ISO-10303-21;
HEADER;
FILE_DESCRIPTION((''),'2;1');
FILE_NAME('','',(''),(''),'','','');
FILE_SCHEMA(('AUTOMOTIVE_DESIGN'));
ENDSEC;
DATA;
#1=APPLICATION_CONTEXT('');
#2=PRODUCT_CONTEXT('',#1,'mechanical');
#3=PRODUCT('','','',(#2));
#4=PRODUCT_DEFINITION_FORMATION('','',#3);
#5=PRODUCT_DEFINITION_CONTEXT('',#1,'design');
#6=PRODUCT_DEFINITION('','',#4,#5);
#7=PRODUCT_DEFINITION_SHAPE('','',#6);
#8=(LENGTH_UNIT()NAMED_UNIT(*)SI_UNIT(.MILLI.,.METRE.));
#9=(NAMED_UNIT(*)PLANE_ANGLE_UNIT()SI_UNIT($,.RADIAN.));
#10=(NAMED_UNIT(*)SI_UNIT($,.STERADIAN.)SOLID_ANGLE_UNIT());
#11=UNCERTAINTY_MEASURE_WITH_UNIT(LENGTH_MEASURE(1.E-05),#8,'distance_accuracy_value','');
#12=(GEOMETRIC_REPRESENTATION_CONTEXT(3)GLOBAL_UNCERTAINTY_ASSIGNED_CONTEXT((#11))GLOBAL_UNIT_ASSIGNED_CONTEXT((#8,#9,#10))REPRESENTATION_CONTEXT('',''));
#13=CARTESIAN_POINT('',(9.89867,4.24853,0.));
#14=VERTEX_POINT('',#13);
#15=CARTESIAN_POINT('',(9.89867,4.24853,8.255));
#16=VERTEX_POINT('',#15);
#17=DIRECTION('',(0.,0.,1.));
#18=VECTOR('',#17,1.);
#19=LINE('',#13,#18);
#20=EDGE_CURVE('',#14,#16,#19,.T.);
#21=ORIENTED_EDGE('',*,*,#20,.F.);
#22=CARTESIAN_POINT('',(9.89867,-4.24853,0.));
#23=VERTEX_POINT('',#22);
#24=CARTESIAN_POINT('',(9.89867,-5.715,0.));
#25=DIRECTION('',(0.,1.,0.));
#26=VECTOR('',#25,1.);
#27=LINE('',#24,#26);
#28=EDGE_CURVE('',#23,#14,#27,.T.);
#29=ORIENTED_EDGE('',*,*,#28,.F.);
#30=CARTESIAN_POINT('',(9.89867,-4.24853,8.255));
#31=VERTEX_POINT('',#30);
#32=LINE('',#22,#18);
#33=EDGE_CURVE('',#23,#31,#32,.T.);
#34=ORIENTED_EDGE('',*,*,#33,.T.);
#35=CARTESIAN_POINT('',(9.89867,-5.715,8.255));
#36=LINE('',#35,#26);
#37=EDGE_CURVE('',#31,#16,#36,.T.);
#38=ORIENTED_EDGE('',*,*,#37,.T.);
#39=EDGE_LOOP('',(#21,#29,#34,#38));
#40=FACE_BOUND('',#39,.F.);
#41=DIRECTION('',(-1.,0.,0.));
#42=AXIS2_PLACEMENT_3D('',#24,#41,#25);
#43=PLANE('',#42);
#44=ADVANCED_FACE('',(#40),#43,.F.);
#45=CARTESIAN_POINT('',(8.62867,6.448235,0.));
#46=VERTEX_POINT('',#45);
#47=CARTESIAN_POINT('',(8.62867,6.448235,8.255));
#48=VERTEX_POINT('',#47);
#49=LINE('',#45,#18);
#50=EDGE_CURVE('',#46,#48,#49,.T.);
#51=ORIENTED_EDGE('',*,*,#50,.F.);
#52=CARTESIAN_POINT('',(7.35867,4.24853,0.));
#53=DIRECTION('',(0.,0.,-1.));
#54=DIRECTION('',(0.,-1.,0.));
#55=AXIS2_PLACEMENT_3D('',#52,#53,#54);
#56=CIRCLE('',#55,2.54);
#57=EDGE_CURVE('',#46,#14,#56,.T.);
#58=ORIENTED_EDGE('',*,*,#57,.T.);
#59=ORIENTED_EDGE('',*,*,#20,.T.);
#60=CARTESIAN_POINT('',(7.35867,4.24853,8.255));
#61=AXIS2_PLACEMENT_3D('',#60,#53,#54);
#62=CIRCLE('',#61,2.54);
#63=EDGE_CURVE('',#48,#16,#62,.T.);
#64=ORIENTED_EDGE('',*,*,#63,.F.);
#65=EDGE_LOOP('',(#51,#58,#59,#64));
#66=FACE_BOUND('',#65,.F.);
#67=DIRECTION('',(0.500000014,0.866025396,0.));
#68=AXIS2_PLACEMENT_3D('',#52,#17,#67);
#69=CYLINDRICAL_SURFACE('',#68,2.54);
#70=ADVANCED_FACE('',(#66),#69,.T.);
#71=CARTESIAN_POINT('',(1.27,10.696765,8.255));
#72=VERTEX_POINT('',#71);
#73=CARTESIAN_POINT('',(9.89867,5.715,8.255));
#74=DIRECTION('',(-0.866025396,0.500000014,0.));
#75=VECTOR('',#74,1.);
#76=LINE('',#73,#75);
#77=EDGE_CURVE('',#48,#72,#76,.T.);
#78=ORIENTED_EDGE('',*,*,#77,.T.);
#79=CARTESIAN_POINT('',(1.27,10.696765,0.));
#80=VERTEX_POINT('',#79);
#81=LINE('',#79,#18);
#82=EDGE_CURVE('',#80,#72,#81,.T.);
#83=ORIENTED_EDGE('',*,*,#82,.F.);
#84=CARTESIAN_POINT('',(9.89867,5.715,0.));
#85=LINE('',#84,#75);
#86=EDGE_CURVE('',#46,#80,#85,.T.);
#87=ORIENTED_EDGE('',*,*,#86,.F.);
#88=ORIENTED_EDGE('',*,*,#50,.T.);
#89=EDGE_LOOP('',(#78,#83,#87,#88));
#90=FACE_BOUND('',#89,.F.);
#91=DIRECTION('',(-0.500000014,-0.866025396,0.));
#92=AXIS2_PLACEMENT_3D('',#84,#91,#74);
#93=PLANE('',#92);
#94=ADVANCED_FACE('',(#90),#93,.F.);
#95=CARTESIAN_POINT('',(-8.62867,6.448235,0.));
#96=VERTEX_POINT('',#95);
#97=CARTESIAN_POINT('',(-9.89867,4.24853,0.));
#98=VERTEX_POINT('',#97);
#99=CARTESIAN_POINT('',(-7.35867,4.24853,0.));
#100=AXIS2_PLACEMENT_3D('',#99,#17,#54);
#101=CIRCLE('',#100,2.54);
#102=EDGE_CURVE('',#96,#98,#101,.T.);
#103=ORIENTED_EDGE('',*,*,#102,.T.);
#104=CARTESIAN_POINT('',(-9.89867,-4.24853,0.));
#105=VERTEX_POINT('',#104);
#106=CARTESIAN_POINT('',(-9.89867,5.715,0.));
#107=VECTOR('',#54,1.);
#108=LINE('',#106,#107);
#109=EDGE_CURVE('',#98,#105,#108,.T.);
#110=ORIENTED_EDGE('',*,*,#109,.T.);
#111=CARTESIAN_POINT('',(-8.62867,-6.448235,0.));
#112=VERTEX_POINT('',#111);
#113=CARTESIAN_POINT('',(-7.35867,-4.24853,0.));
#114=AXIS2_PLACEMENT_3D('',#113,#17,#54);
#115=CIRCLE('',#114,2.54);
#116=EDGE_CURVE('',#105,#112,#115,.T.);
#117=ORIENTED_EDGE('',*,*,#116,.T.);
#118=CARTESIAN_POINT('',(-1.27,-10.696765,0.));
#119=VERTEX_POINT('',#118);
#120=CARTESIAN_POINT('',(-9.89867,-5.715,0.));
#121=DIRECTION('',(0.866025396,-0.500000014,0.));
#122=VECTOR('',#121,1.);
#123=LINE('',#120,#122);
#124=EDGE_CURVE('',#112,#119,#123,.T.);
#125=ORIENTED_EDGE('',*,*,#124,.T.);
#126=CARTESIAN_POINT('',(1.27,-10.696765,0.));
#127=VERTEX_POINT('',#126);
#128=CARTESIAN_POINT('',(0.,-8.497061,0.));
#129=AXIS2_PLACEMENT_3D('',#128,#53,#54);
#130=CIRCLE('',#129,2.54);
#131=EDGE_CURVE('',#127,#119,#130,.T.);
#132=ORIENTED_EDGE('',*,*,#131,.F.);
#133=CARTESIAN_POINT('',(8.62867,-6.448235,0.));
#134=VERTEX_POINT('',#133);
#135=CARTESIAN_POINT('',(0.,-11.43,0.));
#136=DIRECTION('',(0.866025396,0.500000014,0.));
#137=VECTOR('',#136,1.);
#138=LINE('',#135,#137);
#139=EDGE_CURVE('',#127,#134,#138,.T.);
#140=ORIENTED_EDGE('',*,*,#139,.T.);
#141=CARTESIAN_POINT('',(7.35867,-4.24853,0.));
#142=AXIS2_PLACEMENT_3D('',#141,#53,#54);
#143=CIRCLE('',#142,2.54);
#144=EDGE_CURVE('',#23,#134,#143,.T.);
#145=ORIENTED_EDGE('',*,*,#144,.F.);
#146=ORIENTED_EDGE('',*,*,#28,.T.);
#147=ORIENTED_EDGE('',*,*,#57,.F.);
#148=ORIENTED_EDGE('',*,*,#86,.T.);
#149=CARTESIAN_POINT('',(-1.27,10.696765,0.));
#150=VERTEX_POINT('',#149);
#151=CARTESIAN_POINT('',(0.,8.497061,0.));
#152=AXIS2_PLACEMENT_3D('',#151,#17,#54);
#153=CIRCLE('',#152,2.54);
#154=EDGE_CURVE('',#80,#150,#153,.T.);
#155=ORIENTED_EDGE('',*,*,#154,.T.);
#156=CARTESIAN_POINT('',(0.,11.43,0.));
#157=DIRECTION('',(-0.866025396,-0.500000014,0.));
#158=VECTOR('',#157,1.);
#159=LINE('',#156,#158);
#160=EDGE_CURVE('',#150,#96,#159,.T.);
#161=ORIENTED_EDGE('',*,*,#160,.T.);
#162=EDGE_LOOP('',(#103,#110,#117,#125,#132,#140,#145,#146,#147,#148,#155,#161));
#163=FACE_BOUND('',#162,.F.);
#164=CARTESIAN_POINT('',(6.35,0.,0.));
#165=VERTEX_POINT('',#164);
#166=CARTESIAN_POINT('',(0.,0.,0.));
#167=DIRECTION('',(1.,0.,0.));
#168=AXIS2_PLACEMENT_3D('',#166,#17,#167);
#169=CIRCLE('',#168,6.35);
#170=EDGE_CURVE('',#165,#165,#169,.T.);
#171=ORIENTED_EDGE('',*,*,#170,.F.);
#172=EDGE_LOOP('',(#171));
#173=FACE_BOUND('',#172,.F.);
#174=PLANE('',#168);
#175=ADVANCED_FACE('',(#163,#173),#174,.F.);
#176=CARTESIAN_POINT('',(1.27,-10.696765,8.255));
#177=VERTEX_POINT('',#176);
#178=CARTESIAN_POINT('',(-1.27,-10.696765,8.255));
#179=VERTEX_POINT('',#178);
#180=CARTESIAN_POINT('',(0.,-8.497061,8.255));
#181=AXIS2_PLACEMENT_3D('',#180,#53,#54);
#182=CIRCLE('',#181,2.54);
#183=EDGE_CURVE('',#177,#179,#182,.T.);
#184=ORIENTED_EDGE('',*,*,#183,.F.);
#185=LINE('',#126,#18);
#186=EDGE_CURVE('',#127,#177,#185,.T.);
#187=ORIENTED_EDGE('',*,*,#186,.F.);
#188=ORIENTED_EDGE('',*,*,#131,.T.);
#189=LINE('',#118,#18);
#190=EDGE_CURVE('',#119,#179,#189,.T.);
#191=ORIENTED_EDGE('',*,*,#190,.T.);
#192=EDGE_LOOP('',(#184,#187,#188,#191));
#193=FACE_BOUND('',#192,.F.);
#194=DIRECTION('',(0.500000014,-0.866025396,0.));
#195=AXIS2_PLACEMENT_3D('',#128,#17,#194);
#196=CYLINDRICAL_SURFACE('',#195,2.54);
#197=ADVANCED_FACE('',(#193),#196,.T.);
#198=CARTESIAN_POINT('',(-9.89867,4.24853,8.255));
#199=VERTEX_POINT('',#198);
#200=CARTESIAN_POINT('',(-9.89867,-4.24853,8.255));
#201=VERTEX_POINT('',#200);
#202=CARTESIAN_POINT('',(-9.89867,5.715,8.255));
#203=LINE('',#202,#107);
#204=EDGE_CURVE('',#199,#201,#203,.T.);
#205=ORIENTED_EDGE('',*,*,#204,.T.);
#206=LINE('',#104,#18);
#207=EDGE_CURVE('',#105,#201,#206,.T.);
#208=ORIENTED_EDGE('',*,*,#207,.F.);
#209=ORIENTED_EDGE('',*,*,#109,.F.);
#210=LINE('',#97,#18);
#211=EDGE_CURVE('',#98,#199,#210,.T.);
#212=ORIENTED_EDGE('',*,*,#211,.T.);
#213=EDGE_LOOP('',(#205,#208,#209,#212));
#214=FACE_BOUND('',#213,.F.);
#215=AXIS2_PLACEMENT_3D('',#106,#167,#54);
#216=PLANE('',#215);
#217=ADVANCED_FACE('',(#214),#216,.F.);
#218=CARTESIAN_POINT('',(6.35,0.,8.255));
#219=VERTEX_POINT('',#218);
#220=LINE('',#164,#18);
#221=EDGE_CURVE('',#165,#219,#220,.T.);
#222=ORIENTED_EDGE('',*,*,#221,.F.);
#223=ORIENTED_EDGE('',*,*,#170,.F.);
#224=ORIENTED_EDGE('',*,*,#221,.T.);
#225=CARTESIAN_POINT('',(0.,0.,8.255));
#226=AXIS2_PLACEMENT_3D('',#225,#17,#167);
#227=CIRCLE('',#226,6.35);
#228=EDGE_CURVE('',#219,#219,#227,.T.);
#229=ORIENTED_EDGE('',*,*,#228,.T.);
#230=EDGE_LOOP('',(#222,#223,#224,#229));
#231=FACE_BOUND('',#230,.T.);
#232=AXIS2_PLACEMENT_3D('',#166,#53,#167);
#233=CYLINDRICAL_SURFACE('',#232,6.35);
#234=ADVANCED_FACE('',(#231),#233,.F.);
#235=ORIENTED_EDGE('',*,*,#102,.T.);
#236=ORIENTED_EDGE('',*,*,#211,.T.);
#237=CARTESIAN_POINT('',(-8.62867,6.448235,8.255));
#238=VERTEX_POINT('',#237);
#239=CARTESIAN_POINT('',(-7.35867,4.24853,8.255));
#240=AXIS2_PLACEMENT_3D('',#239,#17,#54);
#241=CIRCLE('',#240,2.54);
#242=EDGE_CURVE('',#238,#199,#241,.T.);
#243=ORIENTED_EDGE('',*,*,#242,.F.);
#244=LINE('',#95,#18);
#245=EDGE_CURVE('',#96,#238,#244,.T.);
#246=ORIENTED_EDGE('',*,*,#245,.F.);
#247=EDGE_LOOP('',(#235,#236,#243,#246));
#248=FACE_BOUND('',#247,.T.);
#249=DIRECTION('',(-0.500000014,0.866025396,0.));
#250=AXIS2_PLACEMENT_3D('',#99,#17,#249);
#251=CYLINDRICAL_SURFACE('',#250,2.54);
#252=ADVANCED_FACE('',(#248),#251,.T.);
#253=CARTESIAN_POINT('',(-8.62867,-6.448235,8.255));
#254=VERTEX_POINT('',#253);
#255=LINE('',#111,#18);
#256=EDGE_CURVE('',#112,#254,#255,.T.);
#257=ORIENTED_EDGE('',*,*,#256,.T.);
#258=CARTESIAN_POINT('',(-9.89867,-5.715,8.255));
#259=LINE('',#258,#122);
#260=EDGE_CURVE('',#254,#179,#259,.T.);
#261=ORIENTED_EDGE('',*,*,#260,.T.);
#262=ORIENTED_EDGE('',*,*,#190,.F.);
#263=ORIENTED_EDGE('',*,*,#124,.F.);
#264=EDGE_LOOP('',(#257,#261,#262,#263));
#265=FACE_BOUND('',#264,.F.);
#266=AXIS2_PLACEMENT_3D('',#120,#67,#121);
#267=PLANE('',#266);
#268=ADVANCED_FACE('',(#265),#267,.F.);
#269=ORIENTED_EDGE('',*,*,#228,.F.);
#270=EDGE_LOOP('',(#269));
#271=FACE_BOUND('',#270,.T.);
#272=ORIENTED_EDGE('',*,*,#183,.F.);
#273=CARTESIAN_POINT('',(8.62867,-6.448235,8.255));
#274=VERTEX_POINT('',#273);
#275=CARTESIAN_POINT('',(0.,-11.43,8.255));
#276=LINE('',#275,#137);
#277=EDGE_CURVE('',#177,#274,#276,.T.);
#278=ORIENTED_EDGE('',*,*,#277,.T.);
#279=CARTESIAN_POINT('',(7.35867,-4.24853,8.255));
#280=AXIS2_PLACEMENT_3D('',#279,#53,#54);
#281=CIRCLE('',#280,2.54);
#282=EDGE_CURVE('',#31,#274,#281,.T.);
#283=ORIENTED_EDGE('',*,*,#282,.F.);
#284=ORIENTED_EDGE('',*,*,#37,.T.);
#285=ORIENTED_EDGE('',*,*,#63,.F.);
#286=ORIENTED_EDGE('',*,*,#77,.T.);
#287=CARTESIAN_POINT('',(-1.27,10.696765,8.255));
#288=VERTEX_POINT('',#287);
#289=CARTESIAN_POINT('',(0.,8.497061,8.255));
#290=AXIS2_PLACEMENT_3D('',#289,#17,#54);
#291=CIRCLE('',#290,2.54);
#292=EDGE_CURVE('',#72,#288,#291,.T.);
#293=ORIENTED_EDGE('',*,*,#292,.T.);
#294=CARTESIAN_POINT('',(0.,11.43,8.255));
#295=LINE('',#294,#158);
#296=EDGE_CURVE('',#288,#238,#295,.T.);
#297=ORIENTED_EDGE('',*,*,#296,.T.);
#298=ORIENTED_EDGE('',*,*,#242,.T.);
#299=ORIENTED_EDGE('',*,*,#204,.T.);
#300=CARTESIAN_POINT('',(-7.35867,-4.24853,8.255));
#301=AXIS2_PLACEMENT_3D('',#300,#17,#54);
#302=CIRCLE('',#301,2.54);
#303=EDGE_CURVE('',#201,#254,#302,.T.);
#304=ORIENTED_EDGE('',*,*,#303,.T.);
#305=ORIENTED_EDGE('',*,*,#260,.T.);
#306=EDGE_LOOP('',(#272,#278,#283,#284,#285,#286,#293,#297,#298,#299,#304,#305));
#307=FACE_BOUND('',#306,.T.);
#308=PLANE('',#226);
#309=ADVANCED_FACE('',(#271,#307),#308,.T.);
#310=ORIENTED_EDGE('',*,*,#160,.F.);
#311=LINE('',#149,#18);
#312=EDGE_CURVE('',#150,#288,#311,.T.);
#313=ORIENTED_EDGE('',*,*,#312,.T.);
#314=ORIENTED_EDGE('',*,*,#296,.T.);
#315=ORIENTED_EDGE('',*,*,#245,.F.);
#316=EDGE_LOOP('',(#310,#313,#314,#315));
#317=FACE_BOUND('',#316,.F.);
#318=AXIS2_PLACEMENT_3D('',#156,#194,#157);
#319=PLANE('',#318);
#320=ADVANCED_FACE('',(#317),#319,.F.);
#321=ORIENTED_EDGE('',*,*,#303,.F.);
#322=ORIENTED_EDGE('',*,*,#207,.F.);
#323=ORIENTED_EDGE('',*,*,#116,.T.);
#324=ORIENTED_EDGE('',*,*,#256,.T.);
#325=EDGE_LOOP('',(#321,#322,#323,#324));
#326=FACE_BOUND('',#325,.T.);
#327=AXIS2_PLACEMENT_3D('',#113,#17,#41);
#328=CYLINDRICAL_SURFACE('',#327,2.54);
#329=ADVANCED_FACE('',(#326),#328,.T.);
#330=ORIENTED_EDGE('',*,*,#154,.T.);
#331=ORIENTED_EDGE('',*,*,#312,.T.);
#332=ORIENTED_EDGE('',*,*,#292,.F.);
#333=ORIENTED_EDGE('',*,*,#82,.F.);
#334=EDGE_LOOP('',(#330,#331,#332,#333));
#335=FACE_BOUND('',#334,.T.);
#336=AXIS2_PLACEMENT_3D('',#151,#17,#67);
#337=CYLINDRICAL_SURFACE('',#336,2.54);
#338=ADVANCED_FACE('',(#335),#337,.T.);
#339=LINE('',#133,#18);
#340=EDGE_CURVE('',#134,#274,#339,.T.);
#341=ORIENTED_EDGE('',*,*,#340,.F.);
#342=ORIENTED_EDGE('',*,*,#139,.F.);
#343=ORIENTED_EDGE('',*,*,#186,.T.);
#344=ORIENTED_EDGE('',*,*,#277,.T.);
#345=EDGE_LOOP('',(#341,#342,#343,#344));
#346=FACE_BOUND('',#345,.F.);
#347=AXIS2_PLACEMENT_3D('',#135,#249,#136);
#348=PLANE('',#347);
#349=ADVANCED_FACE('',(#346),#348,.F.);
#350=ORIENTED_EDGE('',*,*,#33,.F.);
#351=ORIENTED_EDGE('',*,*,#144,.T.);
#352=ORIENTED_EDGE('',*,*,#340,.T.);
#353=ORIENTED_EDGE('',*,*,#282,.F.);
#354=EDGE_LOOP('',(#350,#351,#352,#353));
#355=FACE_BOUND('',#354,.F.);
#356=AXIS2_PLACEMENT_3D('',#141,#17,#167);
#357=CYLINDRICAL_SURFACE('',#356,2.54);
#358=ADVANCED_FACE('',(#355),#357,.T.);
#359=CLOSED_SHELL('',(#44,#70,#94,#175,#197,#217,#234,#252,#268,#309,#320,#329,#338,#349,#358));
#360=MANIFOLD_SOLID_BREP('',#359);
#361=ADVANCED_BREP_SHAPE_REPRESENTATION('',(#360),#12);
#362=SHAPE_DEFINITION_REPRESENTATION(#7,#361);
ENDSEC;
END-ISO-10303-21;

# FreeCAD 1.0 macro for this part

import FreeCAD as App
import Part
import Sketcher

V = App.Vector
Q = App.Units.Quantity


def edges_at(feature, points):
    """Names of the edges that pass closest to the given points."""
    edges = feature.Shape.Edges
    near = lambda p: min(range(len(edges)), key=lambda i: edges[i].distToShape(Part.Vertex(*p))[0])
    return sorted({f"Edge{near(p) + 1}" for p in points})


def add_polygon(sketch, points):
    """Adds a closed chain of lines whose ends are joined by coincident constraints."""
    first, n = sketch.GeometryCount, len(points)
    for a, b in zip(points, points[1:] + points[:1]):
        sketch.addGeometry(Part.LineSegment(App.Vector(*a, 0), App.Vector(*b, 0)), False)
    for i in range(n):
        sketch.addConstraint(Sketcher.Constraint("Coincident", first + i, 2, first + (i + 1) % n, 1))

doc = App.newDocument("Part")
body = doc.addObject("PartDesign::Body", "Body")

sketch1 = body.newObject("Sketcher::SketchObject", "Sketch")
sketch1.AttachmentSupport = (doc.getObject("XY_Plane"), [""])
sketch1.MapMode = "FlatFace"
add_polygon(sketch1, [(9.89867, 5.715), (0, 11.43), (-9.89867, 5.715), (-9.89867, -5.715), (0, -11.43), (9.89867, -5.715)])
sketch1.addGeometry(Part.Circle(V(0, 0, 0), V(0, 0, 1), 6.35), False)
sketch1.addConstraint([
    Sketcher.Constraint("Vertical", 2),
    Sketcher.Constraint("Vertical", 5),
    Sketcher.Constraint("Coincident", 6, 3, -1, 1),
    Sketcher.Constraint("Symmetric", 0, 2, 3, 2, -1, 1),
    Sketcher.Constraint("Symmetric", 1, 2, 4, 2, -1, 1),
    Sketcher.Constraint("PointOnObject", 0, 2, -2),
    Sketcher.Constraint("Parallel", 0, 3),
    Sketcher.Constraint("Horizontal", 2, 2, 4, 2),
    Sketcher.Constraint("Diameter", 6, Q("0.5 in")),
    Sketcher.Constraint("Angle", 0, Q("149.999999 deg")),
    Sketcher.Constraint("DistanceY", 2, 2, 2, 1, Q("0.45 in")),
    Sketcher.Constraint("DistanceY", 3, 2, 0, 2, Q("0.9 in")),
])
pad1 = body.newObject("PartDesign::Pad", "Pad")
pad1.Profile = sketch1
pad1.Length = Q("0.325 in")
doc.recompute()

fillet = body.newObject("PartDesign::Fillet", "Fillet")
fillet.Base = (pad1, edges_at(pad1, [
    (-9.899, -5.715, 4.128),
    (0, -11.43, 4.128),
    (9.899, -5.715, 4.128),
    (9.899, 5.715, 4.128),
    (0, 11.43, 4.128),
    (-9.899, 5.715, 4.128),
]))
fillet.Radius = Q("0.1 in")

doc.recompute()
